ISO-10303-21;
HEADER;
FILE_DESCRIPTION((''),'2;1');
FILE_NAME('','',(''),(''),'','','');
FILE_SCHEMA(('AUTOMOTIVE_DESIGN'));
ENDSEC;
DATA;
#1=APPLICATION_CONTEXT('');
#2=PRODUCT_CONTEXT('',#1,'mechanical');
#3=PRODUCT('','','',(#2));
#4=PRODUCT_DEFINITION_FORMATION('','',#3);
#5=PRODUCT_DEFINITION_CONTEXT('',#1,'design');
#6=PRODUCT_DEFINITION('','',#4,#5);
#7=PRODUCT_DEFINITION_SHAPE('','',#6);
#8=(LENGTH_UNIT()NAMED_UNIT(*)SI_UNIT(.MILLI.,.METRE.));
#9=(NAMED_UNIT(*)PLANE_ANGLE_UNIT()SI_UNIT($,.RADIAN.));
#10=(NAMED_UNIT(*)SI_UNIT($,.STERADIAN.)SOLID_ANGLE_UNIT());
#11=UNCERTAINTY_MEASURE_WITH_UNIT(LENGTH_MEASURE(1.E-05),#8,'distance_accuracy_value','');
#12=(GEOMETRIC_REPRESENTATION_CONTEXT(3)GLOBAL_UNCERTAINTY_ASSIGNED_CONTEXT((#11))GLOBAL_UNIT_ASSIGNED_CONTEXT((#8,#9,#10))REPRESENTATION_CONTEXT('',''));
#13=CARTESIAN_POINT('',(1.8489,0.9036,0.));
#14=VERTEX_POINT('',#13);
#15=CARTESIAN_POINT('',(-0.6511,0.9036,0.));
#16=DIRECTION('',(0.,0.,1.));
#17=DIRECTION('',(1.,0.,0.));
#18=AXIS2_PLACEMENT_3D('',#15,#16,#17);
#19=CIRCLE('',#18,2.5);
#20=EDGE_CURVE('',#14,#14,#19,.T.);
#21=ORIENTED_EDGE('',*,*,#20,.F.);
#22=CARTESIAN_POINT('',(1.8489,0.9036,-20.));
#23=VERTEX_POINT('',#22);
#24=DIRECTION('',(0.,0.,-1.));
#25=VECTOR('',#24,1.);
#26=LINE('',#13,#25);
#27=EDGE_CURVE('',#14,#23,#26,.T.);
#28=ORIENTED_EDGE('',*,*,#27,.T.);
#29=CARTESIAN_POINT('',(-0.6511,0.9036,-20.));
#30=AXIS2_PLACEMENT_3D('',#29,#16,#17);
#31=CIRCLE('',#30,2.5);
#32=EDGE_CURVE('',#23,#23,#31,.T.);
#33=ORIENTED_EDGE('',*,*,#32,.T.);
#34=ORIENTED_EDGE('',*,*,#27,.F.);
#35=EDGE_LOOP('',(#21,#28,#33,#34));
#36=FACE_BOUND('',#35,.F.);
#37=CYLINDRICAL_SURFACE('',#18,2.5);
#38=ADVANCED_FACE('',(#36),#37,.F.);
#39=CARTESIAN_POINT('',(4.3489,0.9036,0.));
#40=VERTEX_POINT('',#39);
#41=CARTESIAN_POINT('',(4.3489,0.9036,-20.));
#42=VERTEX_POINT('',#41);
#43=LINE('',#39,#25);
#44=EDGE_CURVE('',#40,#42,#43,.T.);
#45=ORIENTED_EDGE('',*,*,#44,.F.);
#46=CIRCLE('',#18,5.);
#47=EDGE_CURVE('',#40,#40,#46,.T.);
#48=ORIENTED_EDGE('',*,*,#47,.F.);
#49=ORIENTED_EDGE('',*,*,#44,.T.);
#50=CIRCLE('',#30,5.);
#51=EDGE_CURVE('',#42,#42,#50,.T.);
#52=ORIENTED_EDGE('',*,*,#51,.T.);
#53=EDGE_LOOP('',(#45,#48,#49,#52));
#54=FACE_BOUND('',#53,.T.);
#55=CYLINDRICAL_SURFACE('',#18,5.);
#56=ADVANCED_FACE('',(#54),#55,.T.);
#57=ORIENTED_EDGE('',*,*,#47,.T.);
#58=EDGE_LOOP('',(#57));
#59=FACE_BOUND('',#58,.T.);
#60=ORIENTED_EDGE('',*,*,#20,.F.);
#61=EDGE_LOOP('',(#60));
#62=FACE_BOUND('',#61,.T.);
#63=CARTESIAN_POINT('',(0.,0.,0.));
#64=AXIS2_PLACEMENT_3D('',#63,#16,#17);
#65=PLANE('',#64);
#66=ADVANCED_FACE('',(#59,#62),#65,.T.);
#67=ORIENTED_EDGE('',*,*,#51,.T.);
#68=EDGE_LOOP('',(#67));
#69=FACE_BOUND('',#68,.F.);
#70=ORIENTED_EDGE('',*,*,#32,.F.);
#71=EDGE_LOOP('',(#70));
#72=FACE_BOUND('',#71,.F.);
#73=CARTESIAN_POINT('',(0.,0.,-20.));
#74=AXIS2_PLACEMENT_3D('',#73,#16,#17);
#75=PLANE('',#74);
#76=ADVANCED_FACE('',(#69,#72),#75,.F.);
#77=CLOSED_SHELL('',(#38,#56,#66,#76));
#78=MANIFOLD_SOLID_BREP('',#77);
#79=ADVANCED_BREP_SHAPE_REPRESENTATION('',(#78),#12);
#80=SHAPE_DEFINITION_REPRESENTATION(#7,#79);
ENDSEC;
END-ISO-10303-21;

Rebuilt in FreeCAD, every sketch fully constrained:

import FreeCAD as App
import Part
import Sketcher

V = App.Vector

doc = App.newDocument("Part")
body = doc.addObject("PartDesign::Body", "Body")

# Sketch on XY plane
sketch1 = doc.addObject("Sketcher::SketchObject", "Sketch")
body.addObject(sketch1)
sketch1.AttachmentSupport = (doc.XY_Plane, [""])
sketch1.MapMode = "FlatFace"
sketch1.addGeometry([
    Part.Circle(V(-0.6511, 0.9036, 0), V(0, 0, 1), 5),
    Part.Circle(V(-0.6511, 0.9036, 0), V(0, 0, 1), 2.5),
], False)
sketch1.addConstraint([
    Sketcher.Constraint("Coincident", 1, 3, 0, 3),
    Sketcher.Constraint("Diameter", 0, 10.0),
    Sketcher.Constraint("Diameter", 1, 5.0),
    Sketcher.Constraint("DistanceX", 0, 3, -1, 1, 0.651),
    Sketcher.Constraint("DistanceY", -1, 1, 0, 3, 0.9036),
])
pad1 = doc.addObject("PartDesign::Pad", "Pad")
body.addObject(pad1)
pad1.Profile = sketch1
pad1.Length = 20
pad1.Reversed = True

doc.recompute()
